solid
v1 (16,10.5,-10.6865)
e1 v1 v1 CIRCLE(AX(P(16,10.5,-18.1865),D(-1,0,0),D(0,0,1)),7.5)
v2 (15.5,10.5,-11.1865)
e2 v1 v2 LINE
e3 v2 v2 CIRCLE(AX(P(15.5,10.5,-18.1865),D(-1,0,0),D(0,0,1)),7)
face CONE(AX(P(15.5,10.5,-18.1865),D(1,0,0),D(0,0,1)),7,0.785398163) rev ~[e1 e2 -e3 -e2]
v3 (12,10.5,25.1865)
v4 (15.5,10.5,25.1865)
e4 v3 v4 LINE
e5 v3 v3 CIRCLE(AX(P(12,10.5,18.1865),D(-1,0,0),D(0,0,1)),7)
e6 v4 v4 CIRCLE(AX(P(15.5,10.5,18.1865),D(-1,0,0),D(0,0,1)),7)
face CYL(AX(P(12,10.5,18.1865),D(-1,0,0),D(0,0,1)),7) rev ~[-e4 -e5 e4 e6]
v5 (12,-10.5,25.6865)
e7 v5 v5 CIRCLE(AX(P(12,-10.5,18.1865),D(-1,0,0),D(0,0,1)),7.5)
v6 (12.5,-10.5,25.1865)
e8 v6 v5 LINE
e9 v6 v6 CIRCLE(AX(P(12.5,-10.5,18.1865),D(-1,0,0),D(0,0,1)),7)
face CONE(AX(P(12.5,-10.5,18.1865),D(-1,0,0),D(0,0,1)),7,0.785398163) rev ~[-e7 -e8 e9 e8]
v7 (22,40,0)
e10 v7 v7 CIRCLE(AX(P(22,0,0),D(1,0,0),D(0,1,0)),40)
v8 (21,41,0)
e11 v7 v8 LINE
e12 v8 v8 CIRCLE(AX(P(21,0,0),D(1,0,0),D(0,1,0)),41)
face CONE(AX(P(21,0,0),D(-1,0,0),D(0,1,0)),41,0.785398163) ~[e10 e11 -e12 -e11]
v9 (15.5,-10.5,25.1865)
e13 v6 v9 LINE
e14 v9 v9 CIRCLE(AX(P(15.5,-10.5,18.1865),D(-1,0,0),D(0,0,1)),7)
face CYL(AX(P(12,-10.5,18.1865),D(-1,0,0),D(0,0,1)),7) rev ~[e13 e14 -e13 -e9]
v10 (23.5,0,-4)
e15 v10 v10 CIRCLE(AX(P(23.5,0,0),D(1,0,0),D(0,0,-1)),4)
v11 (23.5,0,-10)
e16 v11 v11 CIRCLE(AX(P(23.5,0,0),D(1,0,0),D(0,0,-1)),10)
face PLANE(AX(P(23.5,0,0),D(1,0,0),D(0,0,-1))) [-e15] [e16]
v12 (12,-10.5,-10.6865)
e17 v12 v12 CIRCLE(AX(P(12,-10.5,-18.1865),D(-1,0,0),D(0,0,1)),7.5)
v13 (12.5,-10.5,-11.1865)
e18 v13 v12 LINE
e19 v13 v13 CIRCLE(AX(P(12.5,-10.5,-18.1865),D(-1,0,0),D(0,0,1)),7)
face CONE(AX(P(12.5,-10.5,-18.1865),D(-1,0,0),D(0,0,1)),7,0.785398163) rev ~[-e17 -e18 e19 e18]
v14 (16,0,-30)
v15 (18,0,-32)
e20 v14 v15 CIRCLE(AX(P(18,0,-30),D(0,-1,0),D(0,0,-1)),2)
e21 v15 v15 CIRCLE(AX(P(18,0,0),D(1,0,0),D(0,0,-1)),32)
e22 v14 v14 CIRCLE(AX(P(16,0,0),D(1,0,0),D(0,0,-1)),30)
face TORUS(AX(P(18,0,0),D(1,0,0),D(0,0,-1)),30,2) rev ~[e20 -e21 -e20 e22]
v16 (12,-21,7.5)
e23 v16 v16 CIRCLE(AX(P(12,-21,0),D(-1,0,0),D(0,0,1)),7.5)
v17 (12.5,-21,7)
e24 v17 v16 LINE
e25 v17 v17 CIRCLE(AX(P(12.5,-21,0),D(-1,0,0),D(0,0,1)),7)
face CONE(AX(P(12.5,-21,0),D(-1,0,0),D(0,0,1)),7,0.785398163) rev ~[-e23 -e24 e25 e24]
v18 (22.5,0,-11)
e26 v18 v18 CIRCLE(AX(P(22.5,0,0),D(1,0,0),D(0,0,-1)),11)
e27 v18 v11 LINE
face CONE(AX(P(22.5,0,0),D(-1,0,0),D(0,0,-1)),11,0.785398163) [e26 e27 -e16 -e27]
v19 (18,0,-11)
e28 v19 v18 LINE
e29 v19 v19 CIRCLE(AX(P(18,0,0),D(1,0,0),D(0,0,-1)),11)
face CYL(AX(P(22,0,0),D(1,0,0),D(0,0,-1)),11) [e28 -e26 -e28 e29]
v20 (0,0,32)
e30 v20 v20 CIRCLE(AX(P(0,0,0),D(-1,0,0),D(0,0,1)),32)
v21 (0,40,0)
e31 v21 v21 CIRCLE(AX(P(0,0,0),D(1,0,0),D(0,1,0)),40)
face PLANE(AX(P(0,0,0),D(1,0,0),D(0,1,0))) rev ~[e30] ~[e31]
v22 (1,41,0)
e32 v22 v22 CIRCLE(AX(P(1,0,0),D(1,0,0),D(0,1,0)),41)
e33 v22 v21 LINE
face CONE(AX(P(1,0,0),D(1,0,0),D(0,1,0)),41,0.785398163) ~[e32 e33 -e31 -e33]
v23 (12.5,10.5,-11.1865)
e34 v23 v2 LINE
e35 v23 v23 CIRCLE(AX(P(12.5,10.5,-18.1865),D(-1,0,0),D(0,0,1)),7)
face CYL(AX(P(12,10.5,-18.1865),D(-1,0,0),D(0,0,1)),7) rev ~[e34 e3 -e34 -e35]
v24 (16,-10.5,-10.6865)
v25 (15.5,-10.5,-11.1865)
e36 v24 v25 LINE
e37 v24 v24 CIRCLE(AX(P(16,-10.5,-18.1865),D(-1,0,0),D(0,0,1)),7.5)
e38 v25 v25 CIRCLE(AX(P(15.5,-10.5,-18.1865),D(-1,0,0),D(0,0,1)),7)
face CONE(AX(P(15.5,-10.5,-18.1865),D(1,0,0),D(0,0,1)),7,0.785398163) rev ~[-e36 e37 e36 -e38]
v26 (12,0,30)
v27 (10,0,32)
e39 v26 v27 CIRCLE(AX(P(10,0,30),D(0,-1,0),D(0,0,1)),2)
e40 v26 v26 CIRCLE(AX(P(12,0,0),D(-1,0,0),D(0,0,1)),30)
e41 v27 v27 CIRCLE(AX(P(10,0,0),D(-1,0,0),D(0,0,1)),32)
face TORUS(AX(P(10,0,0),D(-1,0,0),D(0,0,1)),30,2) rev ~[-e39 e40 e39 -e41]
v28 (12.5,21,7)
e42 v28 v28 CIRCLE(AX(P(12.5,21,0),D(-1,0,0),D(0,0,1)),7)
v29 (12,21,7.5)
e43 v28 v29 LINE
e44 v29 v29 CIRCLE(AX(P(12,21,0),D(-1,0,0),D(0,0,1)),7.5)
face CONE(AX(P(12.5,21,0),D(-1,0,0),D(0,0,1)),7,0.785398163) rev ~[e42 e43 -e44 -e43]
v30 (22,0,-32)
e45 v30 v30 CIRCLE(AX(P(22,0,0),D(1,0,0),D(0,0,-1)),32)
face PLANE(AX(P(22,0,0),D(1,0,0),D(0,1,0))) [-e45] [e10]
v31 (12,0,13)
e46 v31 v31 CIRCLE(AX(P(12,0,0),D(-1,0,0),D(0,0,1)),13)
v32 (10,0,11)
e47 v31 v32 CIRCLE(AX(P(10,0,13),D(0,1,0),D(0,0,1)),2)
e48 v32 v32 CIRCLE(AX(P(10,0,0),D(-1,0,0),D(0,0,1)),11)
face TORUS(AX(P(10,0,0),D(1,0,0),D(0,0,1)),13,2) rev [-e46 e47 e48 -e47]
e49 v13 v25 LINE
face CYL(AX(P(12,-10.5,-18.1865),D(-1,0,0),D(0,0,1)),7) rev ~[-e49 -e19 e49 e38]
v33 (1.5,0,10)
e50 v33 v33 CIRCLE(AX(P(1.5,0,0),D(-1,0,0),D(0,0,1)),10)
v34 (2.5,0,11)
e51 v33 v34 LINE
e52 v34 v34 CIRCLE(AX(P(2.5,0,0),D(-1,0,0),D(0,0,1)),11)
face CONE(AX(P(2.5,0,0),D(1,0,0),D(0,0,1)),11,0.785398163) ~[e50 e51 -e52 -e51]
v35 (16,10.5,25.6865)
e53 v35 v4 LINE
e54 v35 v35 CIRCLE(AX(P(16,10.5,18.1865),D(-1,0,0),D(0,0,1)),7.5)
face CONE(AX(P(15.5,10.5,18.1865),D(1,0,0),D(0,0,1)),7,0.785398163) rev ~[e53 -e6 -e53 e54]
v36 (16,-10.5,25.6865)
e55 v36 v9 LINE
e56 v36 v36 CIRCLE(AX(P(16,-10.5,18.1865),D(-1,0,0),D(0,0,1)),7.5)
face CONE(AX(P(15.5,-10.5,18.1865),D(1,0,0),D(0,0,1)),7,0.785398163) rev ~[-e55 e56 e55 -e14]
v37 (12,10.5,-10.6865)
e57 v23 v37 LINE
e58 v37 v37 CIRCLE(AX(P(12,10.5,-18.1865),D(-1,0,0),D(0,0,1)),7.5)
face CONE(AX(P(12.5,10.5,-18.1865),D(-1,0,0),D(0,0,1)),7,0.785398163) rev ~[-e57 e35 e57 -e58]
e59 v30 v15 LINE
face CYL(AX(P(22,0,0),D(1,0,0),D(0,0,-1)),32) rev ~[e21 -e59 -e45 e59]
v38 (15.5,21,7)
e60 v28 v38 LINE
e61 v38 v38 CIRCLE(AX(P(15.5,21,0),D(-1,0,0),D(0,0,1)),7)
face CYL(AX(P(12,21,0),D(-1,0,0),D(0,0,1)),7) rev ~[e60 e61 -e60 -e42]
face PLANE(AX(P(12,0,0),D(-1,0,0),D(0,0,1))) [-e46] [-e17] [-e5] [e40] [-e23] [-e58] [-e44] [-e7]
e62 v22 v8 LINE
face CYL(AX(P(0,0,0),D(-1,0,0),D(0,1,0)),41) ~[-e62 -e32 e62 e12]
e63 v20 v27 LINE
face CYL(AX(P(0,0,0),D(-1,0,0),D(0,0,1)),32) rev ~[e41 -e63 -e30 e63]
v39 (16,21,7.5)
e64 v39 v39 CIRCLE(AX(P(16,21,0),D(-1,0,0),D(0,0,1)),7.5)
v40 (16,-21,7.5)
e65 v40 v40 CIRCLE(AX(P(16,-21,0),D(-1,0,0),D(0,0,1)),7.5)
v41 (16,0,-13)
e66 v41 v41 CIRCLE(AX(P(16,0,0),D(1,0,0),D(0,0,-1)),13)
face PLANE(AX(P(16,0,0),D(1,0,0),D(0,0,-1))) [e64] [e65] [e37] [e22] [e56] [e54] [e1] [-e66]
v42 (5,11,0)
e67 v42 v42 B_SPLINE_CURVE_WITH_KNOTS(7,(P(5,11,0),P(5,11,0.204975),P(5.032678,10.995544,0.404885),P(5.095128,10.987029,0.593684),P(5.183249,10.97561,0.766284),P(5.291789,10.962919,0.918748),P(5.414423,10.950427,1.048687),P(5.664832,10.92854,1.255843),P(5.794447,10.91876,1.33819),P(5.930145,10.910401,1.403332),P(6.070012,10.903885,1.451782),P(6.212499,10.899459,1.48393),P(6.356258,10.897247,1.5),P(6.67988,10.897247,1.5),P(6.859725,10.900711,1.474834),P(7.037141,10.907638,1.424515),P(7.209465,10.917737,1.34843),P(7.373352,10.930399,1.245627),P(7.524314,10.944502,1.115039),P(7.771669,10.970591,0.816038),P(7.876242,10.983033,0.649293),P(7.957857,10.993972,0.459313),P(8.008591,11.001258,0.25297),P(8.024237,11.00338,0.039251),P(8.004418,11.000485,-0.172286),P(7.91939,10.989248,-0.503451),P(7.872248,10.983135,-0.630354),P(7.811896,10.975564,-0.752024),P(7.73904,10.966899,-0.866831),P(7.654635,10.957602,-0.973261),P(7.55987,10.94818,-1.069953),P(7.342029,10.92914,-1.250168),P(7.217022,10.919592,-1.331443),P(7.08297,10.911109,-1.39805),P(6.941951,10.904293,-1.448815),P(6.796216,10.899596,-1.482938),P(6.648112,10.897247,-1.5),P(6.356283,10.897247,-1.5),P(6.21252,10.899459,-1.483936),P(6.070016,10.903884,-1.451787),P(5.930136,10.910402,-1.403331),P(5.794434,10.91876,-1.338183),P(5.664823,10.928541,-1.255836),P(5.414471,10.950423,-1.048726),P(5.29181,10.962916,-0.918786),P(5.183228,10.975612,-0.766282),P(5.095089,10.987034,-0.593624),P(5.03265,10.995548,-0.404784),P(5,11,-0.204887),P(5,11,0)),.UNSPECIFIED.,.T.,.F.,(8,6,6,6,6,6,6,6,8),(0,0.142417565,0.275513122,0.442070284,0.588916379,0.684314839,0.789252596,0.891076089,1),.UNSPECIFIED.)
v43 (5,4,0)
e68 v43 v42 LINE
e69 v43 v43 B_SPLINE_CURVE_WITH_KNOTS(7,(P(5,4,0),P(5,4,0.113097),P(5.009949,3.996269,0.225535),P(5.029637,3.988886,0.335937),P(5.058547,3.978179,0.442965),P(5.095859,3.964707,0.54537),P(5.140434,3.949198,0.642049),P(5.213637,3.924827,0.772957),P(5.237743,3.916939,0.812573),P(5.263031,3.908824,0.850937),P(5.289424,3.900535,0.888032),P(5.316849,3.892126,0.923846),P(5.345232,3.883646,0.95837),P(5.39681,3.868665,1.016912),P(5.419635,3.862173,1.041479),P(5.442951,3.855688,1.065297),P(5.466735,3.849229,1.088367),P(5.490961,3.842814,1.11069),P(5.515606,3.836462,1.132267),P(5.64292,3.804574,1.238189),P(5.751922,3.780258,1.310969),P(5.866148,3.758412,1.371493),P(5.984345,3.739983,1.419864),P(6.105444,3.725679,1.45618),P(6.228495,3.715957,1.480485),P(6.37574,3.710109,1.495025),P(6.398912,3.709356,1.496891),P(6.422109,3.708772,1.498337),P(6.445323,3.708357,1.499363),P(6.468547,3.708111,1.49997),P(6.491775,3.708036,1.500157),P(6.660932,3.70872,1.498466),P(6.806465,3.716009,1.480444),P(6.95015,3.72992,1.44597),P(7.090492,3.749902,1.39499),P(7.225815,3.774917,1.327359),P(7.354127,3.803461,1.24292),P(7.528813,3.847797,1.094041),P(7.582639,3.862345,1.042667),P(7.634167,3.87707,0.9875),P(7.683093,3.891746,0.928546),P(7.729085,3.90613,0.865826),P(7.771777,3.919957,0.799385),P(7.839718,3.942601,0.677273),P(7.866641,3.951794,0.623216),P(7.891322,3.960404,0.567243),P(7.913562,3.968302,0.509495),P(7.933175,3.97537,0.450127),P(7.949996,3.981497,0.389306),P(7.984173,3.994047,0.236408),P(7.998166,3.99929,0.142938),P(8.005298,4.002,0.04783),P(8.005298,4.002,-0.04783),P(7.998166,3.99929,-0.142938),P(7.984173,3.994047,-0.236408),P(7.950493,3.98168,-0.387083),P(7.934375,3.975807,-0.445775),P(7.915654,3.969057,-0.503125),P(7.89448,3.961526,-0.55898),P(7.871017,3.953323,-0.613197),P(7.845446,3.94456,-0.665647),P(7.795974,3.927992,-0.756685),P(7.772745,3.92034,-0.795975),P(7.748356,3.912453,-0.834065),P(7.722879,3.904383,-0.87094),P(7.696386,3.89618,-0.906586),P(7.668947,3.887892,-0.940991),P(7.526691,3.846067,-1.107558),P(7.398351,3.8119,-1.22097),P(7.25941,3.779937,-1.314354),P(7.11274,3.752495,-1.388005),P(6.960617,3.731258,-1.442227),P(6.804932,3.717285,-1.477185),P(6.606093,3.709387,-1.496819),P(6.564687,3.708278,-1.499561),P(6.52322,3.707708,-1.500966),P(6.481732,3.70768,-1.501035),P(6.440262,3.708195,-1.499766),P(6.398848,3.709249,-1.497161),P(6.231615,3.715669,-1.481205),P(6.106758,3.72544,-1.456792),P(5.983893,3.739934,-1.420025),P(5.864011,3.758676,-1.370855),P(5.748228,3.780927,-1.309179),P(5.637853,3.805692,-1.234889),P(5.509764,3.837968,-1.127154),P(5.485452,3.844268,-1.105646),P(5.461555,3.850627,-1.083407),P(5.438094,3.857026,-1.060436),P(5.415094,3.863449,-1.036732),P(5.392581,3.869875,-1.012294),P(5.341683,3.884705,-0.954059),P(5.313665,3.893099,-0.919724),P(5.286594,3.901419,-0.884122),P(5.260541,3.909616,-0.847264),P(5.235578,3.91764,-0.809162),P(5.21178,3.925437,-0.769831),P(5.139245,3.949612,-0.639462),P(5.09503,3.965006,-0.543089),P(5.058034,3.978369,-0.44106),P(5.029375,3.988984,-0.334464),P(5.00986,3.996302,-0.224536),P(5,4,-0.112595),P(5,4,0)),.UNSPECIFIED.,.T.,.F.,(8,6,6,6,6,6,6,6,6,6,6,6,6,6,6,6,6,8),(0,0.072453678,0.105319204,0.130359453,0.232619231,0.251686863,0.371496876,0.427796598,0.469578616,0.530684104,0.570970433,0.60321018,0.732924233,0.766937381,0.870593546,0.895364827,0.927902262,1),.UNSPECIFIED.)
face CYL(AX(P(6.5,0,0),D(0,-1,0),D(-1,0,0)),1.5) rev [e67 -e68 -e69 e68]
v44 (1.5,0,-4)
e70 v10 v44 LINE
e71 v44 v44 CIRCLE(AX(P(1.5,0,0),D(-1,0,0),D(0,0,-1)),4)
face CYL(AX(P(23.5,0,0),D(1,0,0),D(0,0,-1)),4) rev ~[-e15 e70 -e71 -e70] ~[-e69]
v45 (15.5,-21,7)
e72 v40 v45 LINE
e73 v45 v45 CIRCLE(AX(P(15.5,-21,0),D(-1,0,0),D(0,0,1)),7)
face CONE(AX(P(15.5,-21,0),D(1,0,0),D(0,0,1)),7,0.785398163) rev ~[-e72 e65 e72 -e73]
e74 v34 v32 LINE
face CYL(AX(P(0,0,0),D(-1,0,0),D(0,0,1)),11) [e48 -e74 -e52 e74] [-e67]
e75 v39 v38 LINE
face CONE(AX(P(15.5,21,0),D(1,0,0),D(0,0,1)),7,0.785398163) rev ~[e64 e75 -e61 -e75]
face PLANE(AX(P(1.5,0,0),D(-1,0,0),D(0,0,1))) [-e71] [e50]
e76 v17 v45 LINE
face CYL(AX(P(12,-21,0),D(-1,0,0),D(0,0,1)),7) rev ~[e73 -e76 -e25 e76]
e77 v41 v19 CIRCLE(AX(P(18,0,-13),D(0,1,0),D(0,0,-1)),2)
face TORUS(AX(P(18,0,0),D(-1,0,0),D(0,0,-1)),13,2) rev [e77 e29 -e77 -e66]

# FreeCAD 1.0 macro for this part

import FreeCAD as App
import Part
import Sketcher
Q = App.Units.Quantity


def edges_at(feature, points):
    """Names of the edges that pass closest to the given points."""
    edges = feature.Shape.Edges
    near = lambda p: min(range(len(edges)), key=lambda i: edges[i].distToShape(Part.Vertex(*p))[0])
    return sorted({f"Edge{near(p) + 1}" for p in points})

doc = App.newDocument("Part")
body = doc.addObject("PartDesign::Body", "Body")

sketch1 = doc.addObject("Sketcher::SketchObject", "Sketch")
body.addObject(sketch1)
sketch1.AttachmentSupport = (doc.YZ_Plane, [""])
sketch1.MapMode = "FlatFace"
sketch1.addGeometry(Part.Circle(App.Vector(0, 0, 0), App.Vector(0, 0, 1), 41), False)
sketch1.addConstraint([
    Sketcher.Constraint("Coincident", 0, 3, -1, 1),
    Sketcher.Constraint("Diameter", 0, Q("82 mm")),
])
pad1 = doc.addObject("PartDesign::Pad", "Pad")
body.addObject(pad1)
pad1.Profile = sketch1
pad1.Length = 22

sketch2 = doc.addObject("Sketcher::SketchObject", "Sketch001")
body.addObject(sketch2)
sketch2.AttachmentSupport = (doc.YZ_Plane, [""])
sketch2.MapMode = "FlatFace"
sketch2.AttachmentOffset = App.Placement(App.Vector(0, 0, 22), App.Rotation())
sketch2.addGeometry([
    Part.Circle(App.Vector(0, 0, 0), App.Vector(0, 0, 1), 32),
    Part.Circle(App.Vector(0, 0, 0), App.Vector(0, 0, 1), 11),
], False)
sketch2.addConstraint([
    Sketcher.Constraint("Coincident", 0, 3, -1, 1),
    Sketcher.Constraint("Coincident", 1, 3, -1, 1),
    Sketcher.Constraint("Diameter", 0, Q("64 mm")),
    Sketcher.Constraint("Diameter", 1, Q("22 mm")),
])
pocket1 = doc.addObject("PartDesign::Pocket", "Pocket")
body.addObject(pocket1)
pocket1.Profile = sketch2
pocket1.Length = 6

sketch3 = doc.addObject("Sketcher::SketchObject", "Sketch002")
body.addObject(sketch3)
sketch3.AttachmentSupport = (doc.YZ_Plane, [""])
sketch3.MapMode = "FlatFace"
sketch3.AttachmentOffset = App.Placement(App.Vector(0, 0, 22), App.Rotation())
sketch3.addGeometry(Part.Circle(App.Vector(0, 0, 0), App.Vector(0, 0, 1), 11), False)
sketch3.addConstraint([
    Sketcher.Constraint("Coincident", 0, 3, -1, 1),
    Sketcher.Constraint("Diameter", 0, Q("22 mm")),
])
pad2 = doc.addObject("PartDesign::Pad", "Pad001")
body.addObject(pad2)
pad2.Profile = sketch3
pad2.Length = 1.5

sketch4 = doc.addObject("Sketcher::SketchObject", "Sketch003")
body.addObject(sketch4)
sketch4.AttachmentSupport = (doc.YZ_Plane, [""])
sketch4.MapMode = "FlatFace"
sketch4.AttachmentOffset = App.Placement(App.Vector(0, 0, 23.5), App.Rotation())
sketch4.addGeometry(Part.Circle(App.Vector(0, 0, 0), App.Vector(0, 0, 1), 4), False)
sketch4.addConstraint([
    Sketcher.Constraint("Coincident", 0, 3, -1, 1),
    Sketcher.Constraint("Diameter", 0, Q("8 mm")),
])
pocket2 = doc.addObject("PartDesign::Pocket", "Pocket001")
body.addObject(pocket2)
pocket2.Profile = sketch4
pocket2.Length = 23.5

sketch5 = doc.addObject("Sketcher::SketchObject", "Sketch004")
body.addObject(sketch5)
sketch5.AttachmentSupport = (doc.YZ_Plane, [""])
sketch5.MapMode = "FlatFace"
sketch5.addGeometry([
    Part.Circle(App.Vector(0, 0, 0), App.Vector(0, 0, 1), 11),
    Part.Circle(App.Vector(0, 0, 0), App.Vector(0, 0, 1), 4),
], False)
sketch5.addConstraint([
    Sketcher.Constraint("Coincident", 0, 3, -1, 1),
    Sketcher.Constraint("Coincident", 1, 3, -1, 1),
    Sketcher.Constraint("Diameter", 0, Q("22 mm")),
    Sketcher.Constraint("Diameter", 1, Q("8 mm")),
])
pocket3 = doc.addObject("PartDesign::Pocket", "Pocket002")
body.addObject(pocket3)
pocket3.Profile = sketch5
pocket3.Length = 1.5
pocket3.Reversed = True

sketch6 = doc.addObject("Sketcher::SketchObject", "Sketch005")
body.addObject(sketch6)
sketch6.AttachmentSupport = (doc.YZ_Plane, [""])
sketch6.MapMode = "FlatFace"
sketch6.addGeometry([
    Part.Circle(App.Vector(0, 0, 0), App.Vector(0, 0, 1), 32),
    Part.Circle(App.Vector(0, 0, 0), App.Vector(0, 0, 1), 11),
], False)
sketch6.addConstraint([
    Sketcher.Constraint("Coincident", 0, 3, -1, 1),
    Sketcher.Constraint("Coincident", 1, 3, -1, 1),
    Sketcher.Constraint("Diameter", 0, Q("64 mm")),
    Sketcher.Constraint("Diameter", 1, Q("22 mm")),
])
pocket4 = doc.addObject("PartDesign::Pocket", "Pocket003")
body.addObject(pocket4)
pocket4.Profile = sketch6
pocket4.Length = 12
pocket4.Reversed = True
doc.recompute()

chamfer = doc.addObject("PartDesign::Chamfer", "Chamfer")
body.addObject(chamfer)
chamfer.Base = (pocket4, edges_at(pocket4, [
    (22, -41, 0),
    (0, -41, 0),
    (23.5, 0, 11),
    (1.5, 0, -11),
]))
chamfer.Size = 1

sketch7 = doc.addObject("Sketcher::SketchObject", "Sketch006")
body.addObject(sketch7)
sketch7.AttachmentSupport = (doc.YZ_Plane, [""])
sketch7.MapMode = "FlatFace"
sketch7.AttachmentOffset = App.Placement(App.Vector(0, 0, 12), App.Rotation())
sketch7.addGeometry([
    Part.Circle(App.Vector(21, 0, 0), App.Vector(0, 0, 1), 7),
    Part.Circle(App.Vector(10, -18, 0), App.Vector(0, 0, 1), 7),
    Part.Circle(App.Vector(-10, -18, 0), App.Vector(0, 0, 1), 7),
    Part.Circle(App.Vector(-21, 0, 0), App.Vector(0, 0, 1), 7),
    Part.Circle(App.Vector(-10, 18, 0), App.Vector(0, 0, 1), 7),
    Part.Circle(App.Vector(10, 18, 0), App.Vector(0, 0, 1), 7),
], False)
sketch7.addConstraint([
    Sketcher.Constraint("Equal", 0, 1),
    Sketcher.Constraint("Equal", 1, 2),
    Sketcher.Constraint("Equal", 2, 3),
    Sketcher.Constraint("Equal", 3, 4),
    Sketcher.Constraint("Equal", 4, 5),
    Sketcher.Constraint("Symmetric", 0, 3, 3, 3, -1, 1),
    Sketcher.Constraint("Symmetric", 1, 3, 4, 3, -1, 1),
    Sketcher.Constraint("Symmetric", 2, 3, 5, 3, -1, 1),
    Sketcher.Constraint("Symmetric", 1, 3, 2, 3, -2),
    Sketcher.Constraint("PointOnObject", 0, 3, -1),
    Sketcher.Constraint("Diameter", 0, Q("14 mm")),
    Sketcher.Constraint("DistanceX", 3, 3, 0, 3, Q("42 mm")),
    Sketcher.Constraint("DistanceX", -1, 1, 1, 3, Q("10.5 mm")),
    Sketcher.Constraint("DistanceY", 2, 3, 4, 3, Q("36.373 mm")),
])
pocket5 = doc.addObject("PartDesign::Pocket", "Pocket004")
body.addObject(pocket5)
pocket5.Profile = sketch7
pocket5.Length = 4
pocket5.Reversed = True
doc.recompute()

chamfer2 = doc.addObject("PartDesign::Chamfer", "Chamfer001")
body.addObject(chamfer2)
chamfer2.Base = (pocket5, edges_at(pocket5, [
    (16, 21, -7),
    (12, 21, -7),
    (16, 10.5, -25.186),
    (12, 10.5, -25.186),
    (16, -10.5, -25.186),
    (12, -10.5, -25.186),
    (16, 10.5, 11.187),
]))
chamfer2.Size = 0.5
doc.recompute()

chamfer3 = doc.addObject("PartDesign::Chamfer", "Chamfer002")
body.addObject(chamfer3)
chamfer3.Base = (chamfer2, edges_at(chamfer2, [
    (16, -10.5, 11.187),
    (12, -10.5, 11.187),
    (16, -21, -7),
    (12, -21, -7),
]))
chamfer3.Size = 0.5
doc.recompute()

fillet = doc.addObject("PartDesign::Fillet", "Fillet")
body.addObject(fillet)
fillet.Base = (chamfer3, edges_at(chamfer3, [
    (12, 0, -11),
    (12, 0, -32),
    (16, 0, 32),
    (16, 0, 11),
]))
fillet.Radius = 2

sketch8 = doc.addObject("Sketcher::SketchObject", "Sketch007")
body.addObject(sketch8)
sketch8.AttachmentSupport = (doc.XZ_Plane, [""])
sketch8.MapMode = "FlatFace"
sketch8.addGeometry(Part.Circle(App.Vector(6.5, 0, 0), App.Vector(0, 0, 1), 1.5), False)
sketch8.addConstraint([
    Sketcher.Constraint("PointOnObject", 0, 3, -1),
    Sketcher.Constraint("Diameter", 0, Q("3 mm")),
    Sketcher.Constraint("DistanceX", -1, 1, 0, 3, Q("6.5 mm")),
])
pocket6 = doc.addObject("PartDesign::Pocket", "Pocket005")
body.addObject(pocket6)
pocket6.Profile = sketch8
pocket6.Length = 12

doc.recompute()
